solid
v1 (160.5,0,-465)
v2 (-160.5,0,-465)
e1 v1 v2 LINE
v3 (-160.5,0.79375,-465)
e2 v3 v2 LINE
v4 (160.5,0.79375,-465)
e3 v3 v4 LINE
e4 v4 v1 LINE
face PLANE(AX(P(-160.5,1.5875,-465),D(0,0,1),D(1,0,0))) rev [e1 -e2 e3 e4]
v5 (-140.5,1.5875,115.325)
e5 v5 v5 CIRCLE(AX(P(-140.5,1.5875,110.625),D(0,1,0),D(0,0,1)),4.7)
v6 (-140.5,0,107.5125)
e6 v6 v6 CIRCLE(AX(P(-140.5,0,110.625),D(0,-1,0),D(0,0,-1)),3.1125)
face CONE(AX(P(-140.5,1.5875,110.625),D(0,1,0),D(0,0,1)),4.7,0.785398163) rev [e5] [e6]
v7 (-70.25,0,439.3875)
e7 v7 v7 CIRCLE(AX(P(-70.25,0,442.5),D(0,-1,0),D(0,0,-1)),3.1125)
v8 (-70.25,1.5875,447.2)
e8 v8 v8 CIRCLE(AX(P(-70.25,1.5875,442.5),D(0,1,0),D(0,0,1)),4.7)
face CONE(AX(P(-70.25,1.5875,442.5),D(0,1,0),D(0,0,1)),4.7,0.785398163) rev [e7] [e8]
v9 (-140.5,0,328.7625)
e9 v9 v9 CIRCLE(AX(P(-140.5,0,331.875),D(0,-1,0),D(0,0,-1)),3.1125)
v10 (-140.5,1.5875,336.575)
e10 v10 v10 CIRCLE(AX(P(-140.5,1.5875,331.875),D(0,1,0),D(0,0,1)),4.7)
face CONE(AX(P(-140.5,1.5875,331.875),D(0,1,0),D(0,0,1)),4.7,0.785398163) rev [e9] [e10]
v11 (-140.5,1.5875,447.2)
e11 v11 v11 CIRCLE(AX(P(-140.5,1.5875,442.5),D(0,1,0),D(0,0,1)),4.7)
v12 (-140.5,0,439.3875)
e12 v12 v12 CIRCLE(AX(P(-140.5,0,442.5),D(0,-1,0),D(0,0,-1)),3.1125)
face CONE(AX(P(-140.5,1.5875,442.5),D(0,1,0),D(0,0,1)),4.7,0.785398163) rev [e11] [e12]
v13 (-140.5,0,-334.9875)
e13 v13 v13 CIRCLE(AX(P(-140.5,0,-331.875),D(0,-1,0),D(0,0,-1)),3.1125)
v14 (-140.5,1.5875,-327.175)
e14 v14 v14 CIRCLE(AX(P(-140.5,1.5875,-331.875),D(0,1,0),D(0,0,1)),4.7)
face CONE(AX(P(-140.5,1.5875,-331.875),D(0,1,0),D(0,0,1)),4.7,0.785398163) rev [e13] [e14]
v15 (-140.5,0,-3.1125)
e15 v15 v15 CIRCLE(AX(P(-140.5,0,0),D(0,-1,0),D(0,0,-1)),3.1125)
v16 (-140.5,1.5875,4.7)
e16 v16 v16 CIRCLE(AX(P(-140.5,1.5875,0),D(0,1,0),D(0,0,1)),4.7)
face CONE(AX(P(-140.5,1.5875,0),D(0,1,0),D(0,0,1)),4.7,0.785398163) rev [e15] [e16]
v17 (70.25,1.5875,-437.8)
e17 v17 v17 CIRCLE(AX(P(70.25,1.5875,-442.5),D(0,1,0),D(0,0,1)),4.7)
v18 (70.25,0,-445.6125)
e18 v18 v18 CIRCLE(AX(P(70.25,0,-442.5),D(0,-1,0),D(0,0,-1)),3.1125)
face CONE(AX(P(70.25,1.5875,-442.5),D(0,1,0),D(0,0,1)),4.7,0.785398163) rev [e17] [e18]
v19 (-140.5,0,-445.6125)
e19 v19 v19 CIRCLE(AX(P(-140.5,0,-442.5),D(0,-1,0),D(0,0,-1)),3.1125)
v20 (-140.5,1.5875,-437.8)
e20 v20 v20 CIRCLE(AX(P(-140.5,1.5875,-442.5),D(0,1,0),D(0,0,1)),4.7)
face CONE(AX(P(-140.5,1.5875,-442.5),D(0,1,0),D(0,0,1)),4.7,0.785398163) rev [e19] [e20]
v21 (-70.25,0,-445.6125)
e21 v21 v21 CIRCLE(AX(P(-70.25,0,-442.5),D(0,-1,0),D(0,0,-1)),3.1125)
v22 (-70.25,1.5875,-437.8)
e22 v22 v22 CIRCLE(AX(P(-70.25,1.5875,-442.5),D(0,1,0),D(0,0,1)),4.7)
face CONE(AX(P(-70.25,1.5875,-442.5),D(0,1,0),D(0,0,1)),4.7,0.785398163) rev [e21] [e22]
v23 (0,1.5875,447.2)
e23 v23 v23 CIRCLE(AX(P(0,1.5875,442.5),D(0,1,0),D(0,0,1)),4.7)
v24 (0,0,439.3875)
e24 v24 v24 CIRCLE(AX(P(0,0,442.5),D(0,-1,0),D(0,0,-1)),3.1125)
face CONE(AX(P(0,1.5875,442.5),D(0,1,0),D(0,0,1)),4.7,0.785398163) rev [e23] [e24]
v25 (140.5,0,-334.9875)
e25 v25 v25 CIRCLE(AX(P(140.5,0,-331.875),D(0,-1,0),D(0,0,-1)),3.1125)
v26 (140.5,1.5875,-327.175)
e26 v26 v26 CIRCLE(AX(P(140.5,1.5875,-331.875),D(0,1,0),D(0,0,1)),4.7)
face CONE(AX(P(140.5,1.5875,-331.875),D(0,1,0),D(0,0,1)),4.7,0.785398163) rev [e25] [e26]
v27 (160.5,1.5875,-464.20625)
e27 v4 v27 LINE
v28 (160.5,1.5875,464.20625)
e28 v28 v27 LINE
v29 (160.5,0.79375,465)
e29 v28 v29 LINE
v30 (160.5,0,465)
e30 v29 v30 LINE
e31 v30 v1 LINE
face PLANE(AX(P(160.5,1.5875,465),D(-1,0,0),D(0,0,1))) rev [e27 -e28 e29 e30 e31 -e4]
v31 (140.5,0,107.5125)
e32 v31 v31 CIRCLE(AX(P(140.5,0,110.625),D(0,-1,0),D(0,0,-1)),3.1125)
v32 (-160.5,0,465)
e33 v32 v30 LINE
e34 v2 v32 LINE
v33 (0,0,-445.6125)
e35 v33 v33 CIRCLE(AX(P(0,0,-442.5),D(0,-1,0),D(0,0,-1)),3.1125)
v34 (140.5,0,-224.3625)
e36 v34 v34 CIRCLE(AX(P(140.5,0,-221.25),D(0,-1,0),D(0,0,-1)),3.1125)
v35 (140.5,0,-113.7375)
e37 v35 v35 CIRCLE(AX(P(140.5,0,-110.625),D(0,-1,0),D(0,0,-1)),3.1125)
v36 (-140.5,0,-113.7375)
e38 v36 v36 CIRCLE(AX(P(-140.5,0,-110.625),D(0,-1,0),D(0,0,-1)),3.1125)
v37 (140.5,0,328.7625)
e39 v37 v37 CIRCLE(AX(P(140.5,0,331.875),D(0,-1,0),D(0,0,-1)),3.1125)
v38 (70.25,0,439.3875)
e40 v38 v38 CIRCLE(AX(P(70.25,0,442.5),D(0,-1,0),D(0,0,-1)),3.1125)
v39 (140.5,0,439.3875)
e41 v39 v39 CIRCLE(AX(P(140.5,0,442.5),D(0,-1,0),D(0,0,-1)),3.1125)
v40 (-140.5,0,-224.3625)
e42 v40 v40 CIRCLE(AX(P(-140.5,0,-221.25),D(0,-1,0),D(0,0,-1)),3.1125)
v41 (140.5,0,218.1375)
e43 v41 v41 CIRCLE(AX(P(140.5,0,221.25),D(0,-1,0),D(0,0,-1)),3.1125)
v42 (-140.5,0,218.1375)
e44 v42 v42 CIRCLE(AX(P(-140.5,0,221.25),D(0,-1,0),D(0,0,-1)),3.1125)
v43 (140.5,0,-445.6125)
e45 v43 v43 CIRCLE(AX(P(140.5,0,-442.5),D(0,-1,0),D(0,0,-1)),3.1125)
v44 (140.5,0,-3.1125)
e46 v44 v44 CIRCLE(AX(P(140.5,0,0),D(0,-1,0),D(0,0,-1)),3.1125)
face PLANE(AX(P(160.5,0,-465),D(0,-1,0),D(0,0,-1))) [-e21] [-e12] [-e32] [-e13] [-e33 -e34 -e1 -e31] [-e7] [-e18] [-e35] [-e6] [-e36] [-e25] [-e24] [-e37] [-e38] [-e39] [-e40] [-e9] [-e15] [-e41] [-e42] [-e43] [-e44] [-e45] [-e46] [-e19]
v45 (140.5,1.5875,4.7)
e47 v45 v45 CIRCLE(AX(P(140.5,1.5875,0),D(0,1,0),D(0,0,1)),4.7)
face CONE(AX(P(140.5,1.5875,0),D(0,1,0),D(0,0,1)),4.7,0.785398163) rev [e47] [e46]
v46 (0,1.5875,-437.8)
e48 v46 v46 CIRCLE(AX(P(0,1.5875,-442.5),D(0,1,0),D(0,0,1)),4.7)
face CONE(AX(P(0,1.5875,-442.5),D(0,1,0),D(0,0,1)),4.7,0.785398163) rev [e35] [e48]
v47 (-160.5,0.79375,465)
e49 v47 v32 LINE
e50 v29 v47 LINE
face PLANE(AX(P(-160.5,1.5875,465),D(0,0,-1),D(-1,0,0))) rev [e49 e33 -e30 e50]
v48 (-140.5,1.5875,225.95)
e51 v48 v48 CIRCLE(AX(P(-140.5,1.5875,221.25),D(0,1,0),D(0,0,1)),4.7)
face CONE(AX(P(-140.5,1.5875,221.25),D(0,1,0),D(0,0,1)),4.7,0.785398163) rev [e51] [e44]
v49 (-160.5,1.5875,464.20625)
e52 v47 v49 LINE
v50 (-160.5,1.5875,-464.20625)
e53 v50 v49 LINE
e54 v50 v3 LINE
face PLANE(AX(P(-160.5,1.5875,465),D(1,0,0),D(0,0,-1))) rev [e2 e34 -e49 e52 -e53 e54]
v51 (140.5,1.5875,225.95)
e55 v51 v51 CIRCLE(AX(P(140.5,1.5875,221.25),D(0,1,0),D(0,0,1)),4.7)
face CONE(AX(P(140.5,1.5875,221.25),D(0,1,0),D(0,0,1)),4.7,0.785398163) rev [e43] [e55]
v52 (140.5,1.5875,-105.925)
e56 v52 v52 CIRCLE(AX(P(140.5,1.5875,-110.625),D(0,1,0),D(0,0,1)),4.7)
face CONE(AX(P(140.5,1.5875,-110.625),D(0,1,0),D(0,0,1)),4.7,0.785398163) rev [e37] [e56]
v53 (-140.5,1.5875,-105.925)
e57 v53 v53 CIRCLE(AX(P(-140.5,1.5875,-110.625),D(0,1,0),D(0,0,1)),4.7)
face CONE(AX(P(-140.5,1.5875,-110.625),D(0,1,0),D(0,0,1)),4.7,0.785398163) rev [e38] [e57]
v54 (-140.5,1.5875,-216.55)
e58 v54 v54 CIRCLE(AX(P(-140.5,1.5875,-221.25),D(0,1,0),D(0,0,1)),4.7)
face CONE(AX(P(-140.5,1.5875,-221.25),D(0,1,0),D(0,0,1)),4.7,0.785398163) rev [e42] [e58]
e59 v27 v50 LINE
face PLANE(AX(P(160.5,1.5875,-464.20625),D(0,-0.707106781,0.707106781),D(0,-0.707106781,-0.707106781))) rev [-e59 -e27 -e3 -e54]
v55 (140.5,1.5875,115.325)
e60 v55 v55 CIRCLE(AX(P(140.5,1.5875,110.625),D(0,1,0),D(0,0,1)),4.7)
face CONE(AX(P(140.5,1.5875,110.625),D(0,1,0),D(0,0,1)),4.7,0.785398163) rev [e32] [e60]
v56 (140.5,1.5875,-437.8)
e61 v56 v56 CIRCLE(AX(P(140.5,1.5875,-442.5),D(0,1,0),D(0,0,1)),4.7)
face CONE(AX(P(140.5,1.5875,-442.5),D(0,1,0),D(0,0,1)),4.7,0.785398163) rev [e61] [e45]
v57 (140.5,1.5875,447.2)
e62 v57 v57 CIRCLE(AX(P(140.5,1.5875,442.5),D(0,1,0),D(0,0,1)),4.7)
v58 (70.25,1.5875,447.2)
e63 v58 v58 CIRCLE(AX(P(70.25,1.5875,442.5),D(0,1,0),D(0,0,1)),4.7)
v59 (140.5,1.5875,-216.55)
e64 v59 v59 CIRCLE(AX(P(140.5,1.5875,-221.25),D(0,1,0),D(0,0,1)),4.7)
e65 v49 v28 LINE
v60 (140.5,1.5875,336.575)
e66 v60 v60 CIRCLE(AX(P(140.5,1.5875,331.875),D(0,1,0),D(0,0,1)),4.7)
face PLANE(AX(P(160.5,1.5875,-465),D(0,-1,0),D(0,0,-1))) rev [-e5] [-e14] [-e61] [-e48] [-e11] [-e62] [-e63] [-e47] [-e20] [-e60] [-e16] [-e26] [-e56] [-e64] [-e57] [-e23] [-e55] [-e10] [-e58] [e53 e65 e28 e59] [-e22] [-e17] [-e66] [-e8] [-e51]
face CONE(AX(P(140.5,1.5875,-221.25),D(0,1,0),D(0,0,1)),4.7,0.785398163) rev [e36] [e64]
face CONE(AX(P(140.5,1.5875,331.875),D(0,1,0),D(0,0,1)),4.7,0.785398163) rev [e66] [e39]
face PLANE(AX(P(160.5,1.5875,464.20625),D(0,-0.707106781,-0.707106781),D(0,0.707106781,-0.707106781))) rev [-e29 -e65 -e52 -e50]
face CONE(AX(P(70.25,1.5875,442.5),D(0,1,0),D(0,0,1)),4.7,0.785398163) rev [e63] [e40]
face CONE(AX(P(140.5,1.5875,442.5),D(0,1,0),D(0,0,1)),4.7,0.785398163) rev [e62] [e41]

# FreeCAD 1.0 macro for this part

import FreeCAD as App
import Part
import Sketcher
from FreeCAD import Vector
Q = App.Units.Quantity


def edges_at(feature, points):
    """Names of the edges that pass closest to the given points."""
    edges = feature.Shape.Edges
    near = lambda p: min(range(len(edges)), key=lambda i: edges[i].distToShape(Part.Vertex(*p))[0])
    return sorted({f"Edge{near(p) + 1}" for p in points})


def add_polygon(sketch, points):
    """Adds a closed chain of lines whose ends are joined by coincident constraints."""
    first, n = sketch.GeometryCount, len(points)
    for a, b in zip(points, points[1:] + points[:1]):
        sketch.addGeometry(Part.LineSegment(App.Vector(*a, 0), App.Vector(*b, 0)), False)
    for i in range(n):
        sketch.addConstraint(Sketcher.Constraint("Coincident", first + i, 2, first + (i + 1) % n, 1))

doc = App.newDocument("Part")
body = doc.addObject("PartDesign::Body", "Body")

# Sketch on XZ plane
sketch1 = doc.addObject("Sketcher::SketchObject", "Sketch")
body.addObject(sketch1)
sketch1.AttachmentSupport = (doc.XZ_Plane, [""])
sketch1.MapMode = "FlatFace"
add_polygon(sketch1, [(-160.5, -465), (-160.5, 465), (160.5, 465), (160.5, -465)])  # lines 0-3
sketch1.addConstraint(Sketcher.Constraint("Vertical", 0))
sketch1.addConstraint(Sketcher.Constraint("Horizontal", 1))
sketch1.addConstraint(Sketcher.Constraint("Vertical", 2))
sketch1.addConstraint(Sketcher.Constraint("Horizontal", 3))
sketch1.addConstraint(Sketcher.Constraint("Symmetric", 0, 2, 2, 2, -1, 1))
sketch1.addConstraint(Sketcher.Constraint("DistanceX", 1, 1, 1, 2, 321.0))
sketch1.addConstraint(Sketcher.Constraint("DistanceY", 0, 1, 0, 2, 930.0))
pad1 = doc.addObject("PartDesign::Pad", "Pad")
body.addObject(pad1)
pad1.Profile = sketch1
pad1.Length = 1.5875
pad1.Reversed = True
doc.recompute()

chamfer = doc.addObject("PartDesign::Chamfer", "Chamfer")
body.addObject(chamfer)
chamfer.Base = (pad1, edges_at(pad1, [(0, 1.587, 465), (0, 1.587, -465)]))
chamfer.Size = 0.79375

# Sketch on YZ plane
sketch2 = doc.addObject("Sketcher::SketchObject", "Sketch001")
body.addObject(sketch2)
sketch2.AttachmentSupport = (doc.YZ_Plane, [""])
sketch2.MapMode = "FlatFace"
sketch2.AttachmentOffset = App.Placement(Vector(0, 0, -140.5), App.Rotation())
add_polygon(sketch2, [(0, -442.5), (1.5875, -442.5), (1.5875, -437.8), (-0.8625, -440.25), (0, -440.25)])  # lines 0-4
sketch2.addGeometry(Part.LineSegment(Vector(1.5875, -442.5, 0), Vector(-0.8625, -442.5, 0)), True)  # axis
sketch2.addConstraint(Sketcher.Constraint("Horizontal", 0))
sketch2.addConstraint(Sketcher.Constraint("Vertical", 1))
sketch2.addConstraint(Sketcher.Constraint("Horizontal", 3))
sketch2.addConstraint(Sketcher.Constraint("Vertical", 4))
sketch2.addConstraint(Sketcher.Constraint("Horizontal", 5))
sketch2.addConstraint(Sketcher.Constraint("Coincident", 5, 1, 0, 2))
sketch2.addConstraint(Sketcher.Constraint("PointOnObject", 3, 2, -2))
sketch2.addConstraint(Sketcher.Constraint("Vertical", 2, 2, 5, 2))
sketch2.addConstraint(Sketcher.Constraint("Angle", 2, Q("-135 deg")))
sketch2.addConstraint(Sketcher.Constraint("DistanceY", 1, 1, 1, 2, 4.7))
sketch2.addConstraint(Sketcher.Constraint("DistanceX", 5, 2, 5, 1, 2.45))
sketch2.addConstraint(Sketcher.Constraint("DistanceY", 0, 2, -1, 1, 442.5))
sketch2.addConstraint(Sketcher.Constraint("DistanceX", 0, 1, 0, 2, 1.5875))
groove = doc.addObject("PartDesign::Groove", "Groove")
body.addObject(groove)
groove.Profile = sketch2
groove.ReferenceAxis = (sketch2, ["Axis0"])
groove.Angle = 360
doc.recompute()

linearpattern = doc.addObject("PartDesign::LinearPattern", "LinearPattern")
body.addObject(linearpattern)
linearpattern.Originals = [groove]
linearpattern.Direction = (doc.X_Axis, [""])
linearpattern.Mode = "offset"
linearpattern.Offset = 70.25
linearpattern.Occurrences = 2
body.Tip = linearpattern
doc.recompute()

linearpattern2 = doc.addObject("PartDesign::LinearPattern", "LinearPattern001")
body.addObject(linearpattern2)
linearpattern2.Originals = [groove]
linearpattern2.Direction = (doc.X_Axis, [""])
linearpattern2.Mode = "offset"
linearpattern2.Offset = 140.5
linearpattern2.Occurrences = 2
body.Tip = linearpattern2
doc.recompute()

linearpattern3 = doc.addObject("PartDesign::LinearPattern", "LinearPattern002")
body.addObject(linearpattern3)
linearpattern3.Originals = [groove]
linearpattern3.Direction = (doc.X_Axis, [""])
linearpattern3.Mode = "offset"
linearpattern3.Offset = 210.75
linearpattern3.Occurrences = 2
body.Tip = linearpattern3
doc.recompute()

linearpattern4 = doc.addObject("PartDesign::LinearPattern", "LinearPattern003")
body.addObject(linearpattern4)
linearpattern4.Originals = [groove]
linearpattern4.Direction = (doc.X_Axis, [""])
linearpattern4.Mode = "offset"
linearpattern4.Offset = 281
linearpattern4.Occurrences = 2
body.Tip = linearpattern4
doc.recompute()

linearpattern5 = doc.addObject("PartDesign::LinearPattern", "LinearPattern004")
body.addObject(linearpattern5)
linearpattern5.Originals = [groove]
linearpattern5.Direction = (doc.Z_Axis, [""])
linearpattern5.Mode = "offset"
linearpattern5.Offset = 110.625
linearpattern5.Occurrences = 2
body.Tip = linearpattern5
doc.recompute()

datumline = doc.addObject("PartDesign::Line", "DatumLine")
body.addObject(datumline)
datumline.Placement = App.Placement(Vector(0, 0, 0), App.Rotation(Vector(0, 0, 1), Vector(0.93048964, 0, 0.366318208)))
linearpattern6 = doc.addObject("PartDesign::LinearPattern", "LinearPattern005")
body.addObject(linearpattern6)
linearpattern6.Originals = [groove]
linearpattern6.Direction = (datumline, [""])
linearpattern6.Mode = "offset"
linearpattern6.Offset = 301.991541
linearpattern6.Occurrences = 2
body.Tip = linearpattern6
doc.recompute()

linearpattern7 = doc.addObject("PartDesign::LinearPattern", "LinearPattern006")
body.addObject(linearpattern7)
linearpattern7.Originals = [groove]
linearpattern7.Direction = (doc.Z_Axis, [""])
linearpattern7.Mode = "offset"
linearpattern7.Offset = 221.25
linearpattern7.Occurrences = 2
body.Tip = linearpattern7
doc.recompute()

datumline2 = doc.addObject("PartDesign::Line", "DatumLine001")
body.addObject(datumline2)
datumline2.Placement = App.Placement(Vector(0, 0, 0), App.Rotation(Vector(0, 0, 1), Vector(0.785687277, 0, 0.618623879)))
linearpattern8 = doc.addObject("PartDesign::LinearPattern", "LinearPattern007")
body.addObject(linearpattern8)
linearpattern8.Originals = [groove]
linearpattern8.Direction = (datumline2, [""])
linearpattern8.Mode = "offset"
linearpattern8.Offset = 357.648658
linearpattern8.Occurrences = 2
body.Tip = linearpattern8
doc.recompute()

linearpattern9 = doc.addObject("PartDesign::LinearPattern", "LinearPattern008")
body.addObject(linearpattern9)
linearpattern9.Originals = [groove]
linearpattern9.Direction = (doc.Z_Axis, [""])
linearpattern9.Mode = "offset"
linearpattern9.Offset = 331.875
linearpattern9.Occurrences = 2
body.Tip = linearpattern9
doc.recompute()

datumline3 = doc.addObject("PartDesign::Line", "DatumLine002")
body.addObject(datumline3)
datumline3.Placement = App.Placement(Vector(0, 0, 0), App.Rotation(Vector(0, 0, 1), Vector(0.646187036, 0, 0.763179084)))
linearpattern10 = doc.addObject("PartDesign::LinearPattern", "LinearPattern009")
body.addObject(linearpattern10)
linearpattern10.Originals = [groove]
linearpattern10.Direction = (datumline3, [""])
linearpattern10.Mode = "offset"
linearpattern10.Offset = 434.858616
linearpattern10.Occurrences = 2
body.Tip = linearpattern10
doc.recompute()

linearpattern11 = doc.addObject("PartDesign::LinearPattern", "LinearPattern010")
body.addObject(linearpattern11)
linearpattern11.Originals = [groove]
linearpattern11.Direction = (doc.Z_Axis, [""])
linearpattern11.Mode = "offset"
linearpattern11.Offset = 442.5
linearpattern11.Occurrences = 2
body.Tip = linearpattern11
doc.recompute()

datumline4 = doc.addObject("PartDesign::Line", "DatumLine003")
body.addObject(datumline4)
datumline4.Placement = App.Placement(Vector(0, 0, 0), App.Rotation(Vector(0, 0, 1), Vector(0.536072879, 0, 0.844171705)))
linearpattern12 = doc.addObject("PartDesign::LinearPattern", "LinearPattern011")
body.addObject(linearpattern12)
linearpattern12.Originals = [groove]
linearpattern12.Direction = (datumline4, [""])
linearpattern12.Mode = "offset"
linearpattern12.Offset = 524.182458
linearpattern12.Occurrences = 2
body.Tip = linearpattern12
doc.recompute()

linearpattern13 = doc.addObject("PartDesign::LinearPattern", "LinearPattern012")
body.addObject(linearpattern13)
linearpattern13.Originals = [groove]
linearpattern13.Direction = (doc.Z_Axis, [""])
linearpattern13.Mode = "offset"
linearpattern13.Offset = 553.125
linearpattern13.Occurrences = 2
body.Tip = linearpattern13
doc.recompute()

linearpattern14 = doc.addObject("PartDesign::LinearPattern", "LinearPattern013")
body.addObject(linearpattern14)
linearpattern14.Originals = [groove]
linearpattern14.Direction = (doc.Z_Axis, [""])
linearpattern14.Mode = "offset"
linearpattern14.Offset = 663.75
linearpattern14.Occurrences = 2
body.Tip = linearpattern14
doc.recompute()

linearpattern15 = doc.addObject("PartDesign::LinearPattern", "LinearPattern014")
body.addObject(linearpattern15)
linearpattern15.Originals = [groove]
linearpattern15.Direction = (doc.Z_Axis, [""])
linearpattern15.Mode = "offset"
linearpattern15.Offset = 774.375
linearpattern15.Occurrences = 2
body.Tip = linearpattern15
doc.recompute()

datumline5 = doc.addObject("PartDesign::Line", "DatumLine004")
body.addObject(datumline5)
datumline5.Placement = App.Placement(Vector(0, 0, 0), App.Rotation(Vector(0, 0, 1), Vector(0.452926469, 0, 0.891547875)))
linearpattern16 = doc.addObject("PartDesign::LinearPattern", "LinearPattern015")
body.addObject(linearpattern16)
linearpattern16.Originals = [groove]
linearpattern16.Direction = (datumline5, [""])
linearpattern16.Mode = "offset"
linearpattern16.Offset = 620.409756
linearpattern16.Occurrences = 2
body.Tip = linearpattern16
doc.recompute()

datumline6 = doc.addObject("PartDesign::Line", "DatumLine005")
body.addObject(datumline6)
datumline6.Placement = App.Placement(Vector(0, 0, 0), App.Rotation(Vector(0, 0, 1), Vector(0.389854964, 0, 0.920876271)))
linearpattern17 = doc.addObject("PartDesign::LinearPattern", "LinearPattern016")
body.addObject(linearpattern17)
linearpattern17.Originals = [groove]
linearpattern17.Direction = (datumline6, [""])
linearpattern17.Mode = "offset"
linearpattern17.Offset = 720.78087
linearpattern17.Occurrences = 2
body.Tip = linearpattern17
doc.recompute()

datumline7 = doc.addObject("PartDesign::Line", "DatumLine006")
body.addObject(datumline7)
datumline7.Placement = App.Placement(Vector(0, 0, 0), App.Rotation(Vector(0, 0, 1), Vector(0.341109447, 0, 0.940023588)))
linearpattern18 = doc.addObject("PartDesign::LinearPattern", "LinearPattern017")
body.addObject(linearpattern18)
linearpattern18.Originals = [groove]
linearpattern18.Direction = (datumline7, [""])
linearpattern18.Mode = "offset"
linearpattern18.Offset = 823.782521
linearpattern18.Occurrences = 2
body.Tip = linearpattern18
doc.recompute()

linearpattern19 = doc.addObject("PartDesign::LinearPattern", "LinearPattern018")
body.addObject(linearpattern19)
linearpattern19.Originals = [groove]
linearpattern19.Direction = (doc.Z_Axis, [""])
linearpattern19.Mode = "offset"
linearpattern19.Offset = 885
linearpattern19.Occurrences = 2
body.Tip = linearpattern19
doc.recompute()

datumline8 = doc.addObject("PartDesign::Line", "DatumLine007")
body.addObject(datumline8)
datumline8.Placement = App.Placement(Vector(0, 0, 0), App.Rotation(Vector(0, 0, 1), Vector(0.079129627, 0, 0.996864335)))
linearpattern20 = doc.addObject("PartDesign::LinearPattern", "LinearPattern019")
body.addObject(linearpattern20)
linearpattern20.Originals = [groove]
linearpattern20.Direction = (datumline8, [""])
linearpattern20.Mode = "offset"
linearpattern20.Offset = 887.783793
linearpattern20.Occurrences = 2
body.Tip = linearpattern20
doc.recompute()

datumline9 = doc.addObject("PartDesign::Line", "DatumLine008")
body.addObject(datumline9)
datumline9.Placement = App.Placement(Vector(0, 0, 0), App.Rotation(Vector(0, 0, 1), Vector(0.156793462, 0, 0.987631414)))
linearpattern21 = doc.addObject("PartDesign::LinearPattern", "LinearPattern020")
body.addObject(linearpattern21)
linearpattern21.Originals = [groove]
linearpattern21.Direction = (datumline9, [""])
linearpattern21.Mode = "offset"
linearpattern21.Offset = 896.083283
linearpattern21.Occurrences = 2
body.Tip = linearpattern21
doc.recompute()

datumline10 = doc.addObject("PartDesign::Line", "DatumLine009")
body.addObject(datumline10)
datumline10.Placement = App.Placement(Vector(0, 0, 0), App.Rotation(Vector(0, 0, 1), Vector(0.231657678, 0, 0.972797369)))
linearpattern22 = doc.addObject("PartDesign::LinearPattern", "LinearPattern021")
body.addObject(linearpattern22)
linearpattern22.Originals = [groove]
linearpattern22.Direction = (datumline10, [""])
linearpattern22.Mode = "offset"
linearpattern22.Offset = 909.747526
linearpattern22.Occurrences = 2
body.Tip = linearpattern22
doc.recompute()

datumline11 = doc.addObject("PartDesign::Line", "DatumLine010")
body.addObject(datumline11)
datumline11.Placement = App.Placement(Vector(0, 0, 0), App.Rotation(Vector(0, 0, 1), Vector(0.302625721, 0, 0.953109476)))
linearpattern23 = doc.addObject("PartDesign::LinearPattern", "LinearPattern022")
body.addObject(linearpattern23)
linearpattern23.Originals = [groove]
linearpattern23.Direction = (datumline11, [""])
linearpattern23.Mode = "offset"
linearpattern23.Offset = 928.539714
linearpattern23.Occurrences = 2
body.Tip = linearpattern23

doc.recompute()
